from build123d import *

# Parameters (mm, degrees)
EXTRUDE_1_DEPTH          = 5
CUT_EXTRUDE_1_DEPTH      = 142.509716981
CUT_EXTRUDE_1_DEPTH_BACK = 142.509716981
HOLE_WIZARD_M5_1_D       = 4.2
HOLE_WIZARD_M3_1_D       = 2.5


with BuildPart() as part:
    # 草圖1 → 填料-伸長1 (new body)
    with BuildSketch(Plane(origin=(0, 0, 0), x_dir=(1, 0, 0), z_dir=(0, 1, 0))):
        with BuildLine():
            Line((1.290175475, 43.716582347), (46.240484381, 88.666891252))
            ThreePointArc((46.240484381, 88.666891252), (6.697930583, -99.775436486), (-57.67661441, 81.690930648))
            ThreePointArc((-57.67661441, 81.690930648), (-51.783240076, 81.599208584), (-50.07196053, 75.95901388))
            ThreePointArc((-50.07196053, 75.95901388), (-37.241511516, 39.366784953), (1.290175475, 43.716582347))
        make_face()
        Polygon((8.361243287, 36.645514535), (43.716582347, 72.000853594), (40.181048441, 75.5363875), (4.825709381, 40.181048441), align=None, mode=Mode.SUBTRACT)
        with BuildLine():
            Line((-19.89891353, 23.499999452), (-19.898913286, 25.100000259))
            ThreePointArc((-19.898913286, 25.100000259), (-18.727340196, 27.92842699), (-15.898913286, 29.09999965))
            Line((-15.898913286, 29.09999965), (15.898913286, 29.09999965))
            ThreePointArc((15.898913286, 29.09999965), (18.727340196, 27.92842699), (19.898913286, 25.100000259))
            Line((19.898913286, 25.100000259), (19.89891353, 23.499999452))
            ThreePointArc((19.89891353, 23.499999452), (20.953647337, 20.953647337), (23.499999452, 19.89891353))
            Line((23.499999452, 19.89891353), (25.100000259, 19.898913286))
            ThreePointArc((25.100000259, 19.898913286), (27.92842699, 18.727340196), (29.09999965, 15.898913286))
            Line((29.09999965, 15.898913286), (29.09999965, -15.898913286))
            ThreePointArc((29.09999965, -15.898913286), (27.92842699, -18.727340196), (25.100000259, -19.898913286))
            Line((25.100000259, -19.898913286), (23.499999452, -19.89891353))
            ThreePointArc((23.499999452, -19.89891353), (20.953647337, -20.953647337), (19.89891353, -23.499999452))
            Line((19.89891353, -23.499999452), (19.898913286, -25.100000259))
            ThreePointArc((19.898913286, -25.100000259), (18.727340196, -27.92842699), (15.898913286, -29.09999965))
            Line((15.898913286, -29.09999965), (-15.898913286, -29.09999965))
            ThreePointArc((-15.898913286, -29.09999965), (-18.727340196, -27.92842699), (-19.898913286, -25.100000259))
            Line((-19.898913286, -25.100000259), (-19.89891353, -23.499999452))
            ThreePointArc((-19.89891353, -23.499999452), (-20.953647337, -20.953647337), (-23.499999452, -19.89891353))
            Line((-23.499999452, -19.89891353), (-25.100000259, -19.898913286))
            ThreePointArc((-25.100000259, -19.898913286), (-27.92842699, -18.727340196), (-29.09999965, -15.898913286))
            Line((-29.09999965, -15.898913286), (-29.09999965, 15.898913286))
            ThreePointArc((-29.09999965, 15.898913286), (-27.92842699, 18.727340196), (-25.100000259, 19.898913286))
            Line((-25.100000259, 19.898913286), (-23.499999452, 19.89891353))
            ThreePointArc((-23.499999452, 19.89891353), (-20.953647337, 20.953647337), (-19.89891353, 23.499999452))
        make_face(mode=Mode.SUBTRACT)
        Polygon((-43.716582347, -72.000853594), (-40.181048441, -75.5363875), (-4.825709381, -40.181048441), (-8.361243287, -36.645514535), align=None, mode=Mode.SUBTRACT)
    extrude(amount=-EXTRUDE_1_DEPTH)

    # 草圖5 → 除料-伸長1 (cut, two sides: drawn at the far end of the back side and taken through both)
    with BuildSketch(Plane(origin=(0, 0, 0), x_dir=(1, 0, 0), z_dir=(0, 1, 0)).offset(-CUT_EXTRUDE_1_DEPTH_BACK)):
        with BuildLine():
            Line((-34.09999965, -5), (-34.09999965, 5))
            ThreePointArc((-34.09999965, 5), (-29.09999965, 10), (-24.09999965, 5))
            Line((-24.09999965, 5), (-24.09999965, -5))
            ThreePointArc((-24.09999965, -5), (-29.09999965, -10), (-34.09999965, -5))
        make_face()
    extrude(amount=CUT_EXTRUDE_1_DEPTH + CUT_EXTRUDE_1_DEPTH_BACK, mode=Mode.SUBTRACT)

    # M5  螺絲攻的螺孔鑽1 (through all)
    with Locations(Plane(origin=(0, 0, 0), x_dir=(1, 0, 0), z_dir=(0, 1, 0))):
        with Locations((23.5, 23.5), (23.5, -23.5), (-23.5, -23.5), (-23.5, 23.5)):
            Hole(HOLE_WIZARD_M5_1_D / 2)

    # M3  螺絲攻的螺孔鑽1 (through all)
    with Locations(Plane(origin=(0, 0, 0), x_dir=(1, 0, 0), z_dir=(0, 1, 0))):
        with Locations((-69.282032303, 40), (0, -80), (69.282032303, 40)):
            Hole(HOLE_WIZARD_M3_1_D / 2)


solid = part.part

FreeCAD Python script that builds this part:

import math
import FreeCAD as App
import Part
import Sketcher
from FreeCAD import Vector

doc = App.newDocument("Part")
params = doc.addObject("Spreadsheet::Sheet", "Params")
for row, (alias, value) in enumerate([
    ("sketch1_radius", "5 mm"),
    ("sketch1_radius2", "100 mm"),
    ("sketch1_radius3", "4 mm"),
    ("sketch1_radius4", "4 mm"),
    ("sketch1_radius5", "4 mm"),
    ("pad1_length", "5 mm"),
    ("sketch2_radius", "5 mm"),
    ("sketch2_height", "10 mm"),
    ("sketch3_diameter", "4.2 mm"),
    ("hole_diameter", "4.2 mm"),
    ("sketch4_diameter", "2.5 mm"),
    ("hole2_diameter", "2.5 mm"),
], start=1):
    params.set(f"A{row}", alias)
    params.set(f"B{row}", "=" + value)
    params.setAlias(f"B{row}", alias)

body = doc.addObject("PartDesign::Body", "Body")

sketch1 = body.newObject("Sketcher::SketchObject", "Sketch")
sketch1.AttachmentSupport = (doc.getObject("XZ_Plane"), [""])
sketch1.MapMode = "FlatFace"
sketch1.addGeometry([
    Part.LineSegment(Vector(46.240484, -88.666891, 0), Vector(1.290175, -43.716582, 0)),
    Part.ArcOfCircle(Part.Circle(Vector(-20.704098, -65.710856, 0), Vector(0, 0, 1), 31.1046), math.radians(45), math.radians(199.236855)),
    Part.ArcOfCircle(Part.Circle(Vector(-54.792784, -77.606384, 0), Vector(0, 0, 1), 5), math.radians(-125.22341), math.radians(19.236855)),
    Part.ArcOfCircle(Part.Circle(Vector(0, 0, 0), Vector(0, 0, 1), 100), math.radians(-62.457603), math.radians(234.77659)),
    Part.LineSegment(Vector(-43.716582, 72.000854, 0), Vector(-8.361243, 36.645515, 0)),
    Part.LineSegment(Vector(-8.361243, 36.645515, 0), Vector(-4.825709, 40.181048, 0)),
    Part.LineSegment(Vector(-4.825709, 40.181048, 0), Vector(-40.181048, 75.536388, 0)),
    Part.LineSegment(Vector(-40.181048, 75.536388, 0), Vector(-43.716582, 72.000854, 0)),
    Part.LineSegment(Vector(8.361243, -36.645515, 0), Vector(4.825709, -40.181048, 0)),
    Part.LineSegment(Vector(4.825709, -40.181048, 0), Vector(40.181048, -75.536388, 0)),
    Part.LineSegment(Vector(40.181048, -75.536388, 0), Vector(43.716582, -72.000854, 0)),
    Part.LineSegment(Vector(43.716582, -72.000854, 0), Vector(8.361243, -36.645515, 0)),
    Part.LineSegment(Vector(-19.898914, -23.499999, 0), Vector(-19.898913, -25.1, 0)),
    Part.ArcOfCircle(Part.Circle(Vector(-15.898913, -25.1, 0), Vector(0, 0, 1), 4), math.radians(-179.999991), math.radians(-90)),
    Part.LineSegment(Vector(-15.898913, -29.1, 0), Vector(15.898913, -29.1, 0)),
    Part.ArcOfCircle(Part.Circle(Vector(15.898913, -25.1, 0), Vector(0, 0, 1), 4), math.radians(-90), math.radians(-0.000009)),
    Part.LineSegment(Vector(19.898913, -25.1, 0), Vector(19.898914, -23.499999, 0)),
    Part.ArcOfCircle(Part.Circle(Vector(23.5, -23.5, 0), Vector(0, 0, 1), 3.601086), math.radians(90.000009), math.radians(179.999991)),
    Part.LineSegment(Vector(23.499999, -19.898914, 0), Vector(25.1, -19.898913, 0)),
    Part.ArcOfCircle(Part.Circle(Vector(25.1, -15.898913, 0), Vector(0, 0, 1), 4), math.radians(-89.999991), math.radians(0)),
    Part.LineSegment(Vector(29.1, -15.898913, 0), Vector(29.1, 15.898913, 0)),
    Part.ArcOfCircle(Part.Circle(Vector(25.1, 15.898913, 0), Vector(0, 0, 1), 4), math.radians(0), math.radians(89.999991)),
    Part.LineSegment(Vector(25.1, 19.898913, 0), Vector(23.499999, 19.898914, 0)),
    Part.ArcOfCircle(Part.Circle(Vector(23.5, 23.5, 0), Vector(0, 0, 1), 3.601086), math.radians(-179.999991), math.radians(-90.000009)),
    Part.LineSegment(Vector(19.898914, 23.499999, 0), Vector(19.898913, 25.1, 0)),
    Part.ArcOfCircle(Part.Circle(Vector(15.898913, 25.1, 0), Vector(0, 0, 1), 4), math.radians(0.000009), math.radians(90)),
    Part.LineSegment(Vector(15.898913, 29.1, 0), Vector(-15.898913, 29.1, 0)),
    Part.ArcOfCircle(Part.Circle(Vector(-15.898913, 25.1, 0), Vector(0, 0, 1), 4), math.radians(90), math.radians(179.999991)),
    Part.LineSegment(Vector(-19.898913, 25.1, 0), Vector(-19.898914, 23.499999, 0)),
    Part.ArcOfCircle(Part.Circle(Vector(-23.5, 23.5, 0), Vector(0, 0, 1), 3.601086), math.radians(-89.999991), math.radians(-0.000009)),
    Part.LineSegment(Vector(-23.499999, 19.898914, 0), Vector(-25.1, 19.898913, 0)),
    Part.ArcOfCircle(Part.Circle(Vector(-25.1, 15.898913, 0), Vector(0, 0, 1), 4), math.radians(90.000009), math.radians(180)),
    Part.LineSegment(Vector(-29.1, 15.898913, 0), Vector(-29.1, -15.898913, 0)),
    Part.ArcOfCircle(Part.Circle(Vector(-25.1, -15.898913, 0), Vector(0, 0, 1), 4), math.radians(180), math.radians(269.999991)),
    Part.LineSegment(Vector(-25.1, -19.898913, 0), Vector(-23.499999, -19.898914, 0)),
    Part.ArcOfCircle(Part.Circle(Vector(-23.5, -23.5, 0), Vector(0, 0, 1), 3.601086), math.radians(0.000009), math.radians(89.999991)),
], False)
sketch1.addConstraint([
    Sketcher.Constraint("Coincident", 0, 2, 1, 1),
    Sketcher.Constraint("Coincident", 1, 2, 2, 2),
    Sketcher.Constraint("Coincident", 2, 1, 3, 2),
    Sketcher.Constraint("Coincident", 3, 1, 0, 1),
    Sketcher.Constraint("Coincident", 4, 2, 5, 1),
    Sketcher.Constraint("Coincident", 5, 2, 6, 1),
    Sketcher.Constraint("Coincident", 6, 2, 7, 1),
    Sketcher.Constraint("Coincident", 7, 2, 4, 1),
    Sketcher.Constraint("Coincident", 8, 2, 9, 1),
    Sketcher.Constraint("Coincident", 9, 2, 10, 1),
    Sketcher.Constraint("Coincident", 10, 2, 11, 1),
    Sketcher.Constraint("Coincident", 11, 2, 8, 1),
    Sketcher.Constraint("Coincident", 12, 2, 13, 1),
    Sketcher.Constraint("Coincident", 13, 2, 14, 1),
    Sketcher.Constraint("Coincident", 14, 2, 15, 1),
    Sketcher.Constraint("Coincident", 15, 2, 16, 1),
    Sketcher.Constraint("Coincident", 16, 2, 17, 2),
    Sketcher.Constraint("Coincident", 17, 1, 18, 1),
    Sketcher.Constraint("Coincident", 18, 2, 19, 1),
    Sketcher.Constraint("Coincident", 19, 2, 20, 1),
    Sketcher.Constraint("Coincident", 20, 2, 21, 1),
    Sketcher.Constraint("Coincident", 21, 2, 22, 1),
    Sketcher.Constraint("Coincident", 22, 2, 23, 2),
    Sketcher.Constraint("Coincident", 23, 1, 24, 1),
    Sketcher.Constraint("Coincident", 24, 2, 25, 1),
    Sketcher.Constraint("Coincident", 25, 2, 26, 1),
    Sketcher.Constraint("Coincident", 26, 2, 27, 1),
    Sketcher.Constraint("Coincident", 27, 2, 28, 1),
    Sketcher.Constraint("Coincident", 28, 2, 29, 2),
    Sketcher.Constraint("Coincident", 29, 1, 30, 1),
    Sketcher.Constraint("Coincident", 30, 2, 31, 1),
    Sketcher.Constraint("Coincident", 31, 2, 32, 1),
    Sketcher.Constraint("Coincident", 32, 2, 33, 1),
    Sketcher.Constraint("Coincident", 33, 2, 34, 1),
    Sketcher.Constraint("Coincident", 34, 2, 35, 2),
    Sketcher.Constraint("Coincident", 35, 1, 12, 1),
    Sketcher.Constraint("Vertical", 12),
    Sketcher.Constraint("Horizontal", 14),
    Sketcher.Constraint("Vertical", 16),
    Sketcher.Constraint("Horizontal", 18),
    Sketcher.Constraint("Vertical", 20),
    Sketcher.Constraint("Horizontal", 22),
    Sketcher.Constraint("Vertical", 24),
    Sketcher.Constraint("Horizontal", 26),
    Sketcher.Constraint("Vertical", 28),
    Sketcher.Constraint("Horizontal", 30),
    Sketcher.Constraint("Vertical", 32),
    Sketcher.Constraint("Horizontal", 34),
    Sketcher.Constraint("Coincident", 3, 3, -1, 1),
    Sketcher.Constraint("Radius", 2, 5.0),
    Sketcher.Constraint("Radius", 3, 100.0),
    Sketcher.Constraint("Radius", 13, 4.0),
    Sketcher.Constraint("Radius", 15, 4.0),
    Sketcher.Constraint("Radius", 19, 4.0),
    Sketcher.Constraint("Radius", 21, 4.0),
    Sketcher.Constraint("Radius", 25, 4.0),
    Sketcher.Constraint("Radius", 27, 4.0),
    Sketcher.Constraint("Radius", 31, 4.0),
    Sketcher.Constraint("Radius", 33, 4.0),
    Sketcher.Constraint("Distance", 4, 50.0),
    Sketcher.Constraint("Distance", 5, 5.0),
    Sketcher.Constraint("Distance", 6, 50.0),
    Sketcher.Constraint("Distance", 7, 5.0),
    Sketcher.Constraint("Distance", 8, 5.0),
    Sketcher.Constraint("Distance", 9, 50.0),
    Sketcher.Constraint("Distance", 10, 5.0),
    Sketcher.Constraint("Distance", 11, 50.0),
    Sketcher.Constraint("DistanceX", 18, 1, 18, 2, 1.600001),
    Sketcher.Constraint("DistanceX", 22, 2, 22, 1, 1.600001),
    Sketcher.Constraint("DistanceX", 30, 2, 30, 1, 1.600001),
    Sketcher.Constraint("DistanceX", 34, 1, 34, 2, 1.600001),
    Sketcher.Constraint("DistanceY", 12, 2, 12, 1, 1.600001),
    Sketcher.Constraint("DistanceY", 16, 1, 16, 2, 1.600001),
    Sketcher.Constraint("DistanceY", 24, 1, 24, 2, 1.600001),
    Sketcher.Constraint("DistanceY", 28, 2, 28, 1, 1.600001),
    Sketcher.Constraint("DistanceY", 17, 3, 23, 3, 47.0),
    Sketcher.Constraint("DistanceX", 29, 3, 23, 3, 47.0),
    Sketcher.Constraint("DistanceX", 12, 2, 13, 2, 4.0),
    Sketcher.Constraint("DistanceY", 13, 2, 12, 2, 3.999999),
    Sketcher.Constraint("DistanceX", 14, 2, 15, 2, 4.0),
    Sketcher.Constraint("DistanceY", 14, 2, 15, 2, 3.999999),
    Sketcher.Constraint("DistanceX", 18, 2, 19, 2, 3.999999),
    Sketcher.Constraint("DistanceY", 18, 2, 19, 2, 4.0),
    Sketcher.Constraint("DistanceX", 21, 2, 20, 2, 3.999999),
    Sketcher.Constraint("DistanceY", 20, 2, 21, 2, 4.0),
    Sketcher.Constraint("DistanceX", 25, 2, 24, 2, 4.0),
    Sketcher.Constraint("DistanceY", 24, 2, 25, 2, 3.999999),
    Sketcher.Constraint("DistanceX", 27, 2, 26, 2, 4.0),
    Sketcher.Constraint("DistanceY", 27, 2, 26, 2, 3.999999),
    Sketcher.Constraint("DistanceX", 31, 2, 30, 2, 3.999999),
    Sketcher.Constraint("DistanceY", 31, 2, 30, 2, 4.0),
    Sketcher.Constraint("DistanceX", 32, 2, 33, 2, 3.999999),
    Sketcher.Constraint("DistanceY", 33, 2, 32, 2, 4.0),
    Sketcher.Constraint("DistanceY", 13, 3, -1, 1, 25.1),
    Sketcher.Constraint("DistanceX", -1, 1, 17, 3, 23.5),
    Sketcher.Constraint("DistanceY", 17, 3, -1, 1, 23.5),
    Sketcher.Constraint("DistanceX", -1, 1, 19, 3, 25.1),
    Sketcher.Constraint("DistanceX", -1, 1, 23, 3, 23.5),
    Sketcher.Constraint("DistanceY", -1, 1, 25, 3, 25.1),
    Sketcher.Constraint("DistanceY", -1, 1, 29, 3, 23.5),
    Sketcher.Constraint("DistanceX", 31, 3, -1, 1, 25.1),
    Sketcher.Constraint("DistanceX", 35, 3, -1, 1, 23.5),
    Sketcher.Constraint("DistanceY", 35, 3, -1, 1, 23.5),
    Sketcher.Constraint("Radius", 1, 31.1046),
    Sketcher.Constraint("Radius", 17, 3.601086),
    Sketcher.Constraint("Radius", 23, 3.601086),
    Sketcher.Constraint("Radius", 29, 3.601086),
    Sketcher.Constraint("Radius", 35, 3.601086),
    Sketcher.Constraint("DistanceY", 31, 3, 4, 2, 20.746601),
    Sketcher.Constraint("DistanceY", 11, 2, 19, 3, 20.746601),
    Sketcher.Constraint("DistanceX", 1, 2, -1, 1, 50.071961),
    Sketcher.Constraint("DistanceY", 2, 1, -1, 1, 81.690931),
    Sketcher.Constraint("DistanceY", 3, 1, -1, 1, 88.666891),
    Sketcher.Constraint("DistanceX", 5, 2, -1, 1, 4.825709),
    Sketcher.Constraint("DistanceY", -1, 1, 5, 2, 40.181048),
    Sketcher.Constraint("DistanceX", 6, 2, -1, 1, 40.181048),
    Sketcher.Constraint("DistanceX", -1, 1, 8, 2, 4.825709),
    Sketcher.Constraint("DistanceY", 8, 2, -1, 1, 40.181048),
    Sketcher.Constraint("DistanceX", -1, 1, 9, 2, 40.181048),
    Sketcher.Constraint("DistanceY", 2, 3, 1, 3, 11.895529),
    Sketcher.Constraint("DistanceX", 2, 3, 13, 3, 38.89387),
    Sketcher.Constraint("DistanceX", 13, 3, 0, 2, 17.189089),
])
sketch1.setExpression("Constraints[49]", "Params.sketch1_radius")
sketch1.setExpression("Constraints[50]", "Params.sketch1_radius2")
sketch1.setExpression("Constraints[51]", "Params.sketch1_radius3")
sketch1.setExpression("Constraints[52]", "Params.sketch1_radius4")
sketch1.setExpression("Constraints[53]", "Params.sketch1_radius5")
pad1 = body.newObject("PartDesign::Pad", "Pad")
pad1.Profile = sketch1
pad1.setExpression("Length", "Params.pad1_length")

sketch2 = body.newObject("Sketcher::SketchObject", "Sketch001")
sketch2.AttachmentSupport = (doc.getObject("XZ_Plane"), [""])
sketch2.MapMode = "FlatFace"
sketch2.addGeometry([
    Part.LineSegment(Vector(-34, -5, 0), Vector(-34, 5, 0)),
    Part.ArcOfCircle(Part.Circle(Vector(-29, 5, 0), Vector(0, 0, 1), 5), math.radians(0), math.radians(180)),
    Part.LineSegment(Vector(-24, 5, 0), Vector(-24, -5, 0)),
    Part.ArcOfCircle(Part.Circle(Vector(-29, -5, 0), Vector(0, 0, 1), 5), math.radians(180), math.radians(360)),
], False)
sketch2.addConstraint([
    Sketcher.Constraint("Tangent", 0, 2, 1, 2),
    Sketcher.Constraint("Tangent", 1, 1, 2, 1),
    Sketcher.Constraint("Tangent", 2, 2, 3, 2),
    Sketcher.Constraint("Tangent", 3, 1, 0, 1),
    Sketcher.Constraint("Vertical", 0),
    Sketcher.Constraint("Vertical", 2),
    Sketcher.Constraint("Radius", 1, 5.0),
    Sketcher.Constraint("DistanceY", 0, 1, 0, 2, 10.0),
    Sketcher.Constraint("DistanceY", -1, 1, 1, 3, 5.0),
    Sketcher.Constraint("DistanceX", 1, 3, -1, 1, 29.1),
])
sketch2.setExpression("Constraints[6]", "Params.sketch2_radius")
sketch2.setExpression("Constraints[7]", "Params.sketch2_height")
pocket1 = body.newObject("PartDesign::Pocket", "Pocket")
pocket1.Profile = sketch2
pocket1.Type = "ThroughAll"
pocket1.Midplane = True

sketch3 = body.newObject("Sketcher::SketchObject", "Sketch002")
sketch3.AttachmentSupport = (doc.getObject("XZ_Plane"), [""])
sketch3.MapMode = "FlatFace"
sketch3.addGeometry([
    Part.Circle(Vector(23.5, -23.5, 0), Vector(0, 0, 1), 2.1),
    Part.Circle(Vector(23.5, 23.5, 0), Vector(0, 0, 1), 2.1),
    Part.Circle(Vector(-23.5, 23.5, 0), Vector(0, 0, 1), 2.1),
    Part.Circle(Vector(-23.5, -23.5, 0), Vector(0, 0, 1), 2.1),
], False)
sketch3.addConstraint([
    Sketcher.Constraint("Equal", 0, 1),
    Sketcher.Constraint("Equal", 1, 2),
    Sketcher.Constraint("Equal", 2, 3),
    Sketcher.Constraint("Symmetric", 0, 3, 2, 3, -1, 1),
    Sketcher.Constraint("Symmetric", 1, 3, 3, 3, -1, 1),
    Sketcher.Constraint("Symmetric", 1, 3, 2, 3, -2),
    Sketcher.Constraint("Diameter", 0, 4.2),
    Sketcher.Constraint("DistanceY", 0, 3, 1, 3, 47.0),
    Sketcher.Constraint("DistanceX", 2, 3, 1, 3, 47.0),
])
sketch3.setExpression("Constraints[6]", "Params.sketch3_diameter")
doc.recompute()
hole = body.newObject("PartDesign::Hole", "Hole")
hole.Profile = sketch3
hole.ThreadType = "None"
hole.setExpression("Diameter", "Params.hole_diameter")
hole.DepthType = "ThroughAll"
hole.Reversed = True

sketch4 = body.newObject("Sketcher::SketchObject", "Sketch003")
sketch4.AttachmentSupport = (doc.getObject("XZ_Plane"), [""])
sketch4.MapMode = "FlatFace"
sketch4.addGeometry([
    Part.Circle(Vector(-69.3, -40, 0), Vector(0, 0, 1), 1.2),
    Part.Circle(Vector(0, 80, 0), Vector(0, 0, 1), 1.2),
    Part.Circle(Vector(69.3, -40, 0), Vector(0, 0, 1), 1.2),
], False)
sketch4.addConstraint([
    Sketcher.Constraint("Equal", 0, 1),
    Sketcher.Constraint("Equal", 1, 2),
    Sketcher.Constraint("Symmetric", 0, 3, 2, 3, -2),
    Sketcher.Constraint("PointOnObject", 1, 3, -2),
    Sketcher.Constraint("Diameter", 0, 2.5),
    Sketcher.Constraint("DistanceY", 0, 3, -1, 1, 40.0),
    Sketcher.Constraint("DistanceY", -1, 1, 1, 3, 80.0),
    Sketcher.Constraint("DistanceX", 0, 3, -1, 1, 69.282032),
])
sketch4.setExpression("Constraints[4]", "Params.sketch4_diameter")
doc.recompute()
hole2 = body.newObject("PartDesign::Hole", "Hole001")
hole2.Profile = sketch4
hole2.ThreadType = "None"
hole2.setExpression("Diameter", "Params.hole2_diameter")
hole2.DepthType = "ThroughAll"
hole2.Reversed = True

doc.recompute()
